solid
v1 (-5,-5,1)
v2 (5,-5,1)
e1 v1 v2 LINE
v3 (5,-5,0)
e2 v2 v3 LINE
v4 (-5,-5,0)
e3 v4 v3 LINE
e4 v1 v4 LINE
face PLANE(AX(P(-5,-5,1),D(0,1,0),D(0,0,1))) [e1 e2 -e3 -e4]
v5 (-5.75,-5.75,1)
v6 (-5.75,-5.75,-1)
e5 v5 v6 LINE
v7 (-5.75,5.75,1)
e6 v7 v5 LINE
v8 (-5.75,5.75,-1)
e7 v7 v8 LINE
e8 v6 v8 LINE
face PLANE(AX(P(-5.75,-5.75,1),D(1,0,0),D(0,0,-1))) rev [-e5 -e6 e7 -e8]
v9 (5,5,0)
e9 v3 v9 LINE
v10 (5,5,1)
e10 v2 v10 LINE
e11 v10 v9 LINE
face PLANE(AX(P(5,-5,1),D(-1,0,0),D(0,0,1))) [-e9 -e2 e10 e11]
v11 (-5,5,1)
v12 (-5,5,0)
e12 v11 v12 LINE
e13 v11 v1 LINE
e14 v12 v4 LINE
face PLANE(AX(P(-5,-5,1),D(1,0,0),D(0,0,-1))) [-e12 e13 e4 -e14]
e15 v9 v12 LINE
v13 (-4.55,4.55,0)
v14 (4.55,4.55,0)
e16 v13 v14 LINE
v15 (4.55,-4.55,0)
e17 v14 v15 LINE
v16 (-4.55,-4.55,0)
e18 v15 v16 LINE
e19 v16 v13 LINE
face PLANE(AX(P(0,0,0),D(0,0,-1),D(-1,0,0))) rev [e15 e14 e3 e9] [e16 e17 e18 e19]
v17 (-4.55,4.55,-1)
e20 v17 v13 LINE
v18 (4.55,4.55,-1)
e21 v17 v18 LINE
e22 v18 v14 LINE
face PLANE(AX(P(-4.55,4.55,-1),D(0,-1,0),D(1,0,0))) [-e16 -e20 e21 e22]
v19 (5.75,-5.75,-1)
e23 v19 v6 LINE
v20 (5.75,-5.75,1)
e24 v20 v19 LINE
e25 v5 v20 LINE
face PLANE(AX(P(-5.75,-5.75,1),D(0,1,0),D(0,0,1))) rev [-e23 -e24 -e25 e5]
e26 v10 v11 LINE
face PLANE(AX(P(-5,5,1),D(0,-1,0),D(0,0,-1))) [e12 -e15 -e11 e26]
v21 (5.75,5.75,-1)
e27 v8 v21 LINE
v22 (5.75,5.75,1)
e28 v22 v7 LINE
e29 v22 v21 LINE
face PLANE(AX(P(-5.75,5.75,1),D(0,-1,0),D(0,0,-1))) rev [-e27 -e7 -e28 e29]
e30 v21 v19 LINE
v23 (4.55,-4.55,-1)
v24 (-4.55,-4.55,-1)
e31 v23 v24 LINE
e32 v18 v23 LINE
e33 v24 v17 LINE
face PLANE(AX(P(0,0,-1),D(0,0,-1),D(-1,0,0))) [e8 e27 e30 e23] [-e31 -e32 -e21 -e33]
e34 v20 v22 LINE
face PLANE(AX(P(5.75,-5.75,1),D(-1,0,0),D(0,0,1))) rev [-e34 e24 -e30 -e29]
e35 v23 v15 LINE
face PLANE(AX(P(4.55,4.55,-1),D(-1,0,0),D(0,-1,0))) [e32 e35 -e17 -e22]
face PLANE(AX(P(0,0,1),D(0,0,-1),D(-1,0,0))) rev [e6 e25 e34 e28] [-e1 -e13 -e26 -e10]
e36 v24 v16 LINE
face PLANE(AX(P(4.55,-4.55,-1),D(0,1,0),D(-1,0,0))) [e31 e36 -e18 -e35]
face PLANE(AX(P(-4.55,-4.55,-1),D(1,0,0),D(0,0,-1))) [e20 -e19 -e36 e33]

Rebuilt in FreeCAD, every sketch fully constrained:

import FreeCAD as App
import Part
import Sketcher

V = App.Vector


def add_polygon(sketch, points):
    """Adds a closed chain of lines whose ends are joined by coincident constraints."""
    first, n = sketch.GeometryCount, len(points)
    for a, b in zip(points, points[1:] + points[:1]):
        sketch.addGeometry(Part.LineSegment(App.Vector(*a, 0), App.Vector(*b, 0)), False)
    for i in range(n):
        sketch.addConstraint(Sketcher.Constraint("Coincident", first + i, 2, first + (i + 1) % n, 1))

doc = App.newDocument("Part")
body = doc.addObject("PartDesign::Body", "Body")

sketch1 = doc.addObject("Sketcher::SketchObject", "Sketch")
body.addObject(sketch1)
sketch1.AttachmentSupport = (doc.XY_Plane, [""])
sketch1.MapMode = "FlatFace"
add_polygon(sketch1, [(-6, 6), (-6, -6), (6, -6), (6, 6)])
add_polygon(sketch1, [(5, -5), (-5, -5), (-5, 5), (5, 5)])
sketch1.addConstraint([
    Sketcher.Constraint("Vertical", 0),
    Sketcher.Constraint("Horizontal", 1),
    Sketcher.Constraint("Vertical", 2),
    Sketcher.Constraint("Horizontal", 3),
    Sketcher.Constraint("Horizontal", 4),
    Sketcher.Constraint("Vertical", 5),
    Sketcher.Constraint("Horizontal", 6),
    Sketcher.Constraint("Vertical", 7),
    Sketcher.Constraint("Symmetric", 0, 2, 2, 2, -1, 1),
    Sketcher.Constraint("Symmetric", 4, 2, 6, 2, -1, 1),
    Sketcher.Constraint("Equal", 3, 0),
    Sketcher.Constraint("Equal", 6, 5),
    Sketcher.Constraint("DistanceX", 4, 2, 4, 1, 10.0),
    Sketcher.Constraint("DistanceX", 1, 1, 1, 2, 11.5),
])
pad1 = doc.addObject("PartDesign::Pad", "Pad")
body.addObject(pad1)
pad1.Profile = sketch1
pad1.Length = 1

sketch2 = doc.addObject("Sketcher::SketchObject", "Sketch001")
body.addObject(sketch2)
sketch2.AttachmentSupport = (doc.XY_Plane, [""])
sketch2.MapMode = "FlatFace"
add_polygon(sketch2, [(6, 6), (6, -6), (-6, -6), (-6, 6)])
add_polygon(sketch2, [(-5, -5), (5, -5), (5, 5), (-5, 5)])
sketch2.addConstraint([
    Sketcher.Constraint("Vertical", 0),
    Sketcher.Constraint("Horizontal", 1),
    Sketcher.Constraint("Vertical", 2),
    Sketcher.Constraint("Horizontal", 3),
    Sketcher.Constraint("Horizontal", 4),
    Sketcher.Constraint("Vertical", 5),
    Sketcher.Constraint("Horizontal", 6),
    Sketcher.Constraint("Vertical", 7),
    Sketcher.Constraint("Symmetric", 0, 2, 2, 2, -1, 1),
    Sketcher.Constraint("Symmetric", 4, 2, 6, 2, -1, 1),
    Sketcher.Constraint("Equal", 3, 0),
    Sketcher.Constraint("Equal", 6, 5),
    Sketcher.Constraint("DistanceX", 1, 2, 1, 1, 11.5),
    Sketcher.Constraint("DistanceX", 4, 1, 4, 2, 9.1),
])
pad2 = doc.addObject("PartDesign::Pad", "Pad001")
body.addObject(pad2)
pad2.Profile = sketch2
pad2.Length = 1
pad2.Reversed = True

doc.recompute()
